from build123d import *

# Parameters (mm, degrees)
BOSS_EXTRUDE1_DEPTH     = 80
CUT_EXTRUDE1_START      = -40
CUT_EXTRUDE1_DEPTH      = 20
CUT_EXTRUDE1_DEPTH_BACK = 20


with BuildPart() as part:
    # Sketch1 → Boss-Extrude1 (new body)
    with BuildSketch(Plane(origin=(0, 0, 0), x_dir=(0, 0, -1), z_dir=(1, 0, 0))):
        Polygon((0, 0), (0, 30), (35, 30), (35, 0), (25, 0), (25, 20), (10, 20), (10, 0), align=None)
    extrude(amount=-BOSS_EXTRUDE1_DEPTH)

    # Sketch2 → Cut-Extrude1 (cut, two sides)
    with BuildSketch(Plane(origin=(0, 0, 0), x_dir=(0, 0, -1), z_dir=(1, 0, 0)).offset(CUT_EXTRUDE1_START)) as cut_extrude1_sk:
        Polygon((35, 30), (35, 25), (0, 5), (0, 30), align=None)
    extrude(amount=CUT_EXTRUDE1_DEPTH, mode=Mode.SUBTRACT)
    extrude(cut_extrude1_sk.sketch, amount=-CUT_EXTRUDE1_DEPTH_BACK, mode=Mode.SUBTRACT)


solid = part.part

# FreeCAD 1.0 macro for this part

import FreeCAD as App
import Part
import Sketcher

V = App.Vector

doc = App.newDocument("Part")
body = doc.addObject("PartDesign::Body", "Body")

# Sketch on YZ plane
sketch1 = body.newObject("Sketcher::SketchObject", "Sketch")
sketch1.AttachmentSupport = (doc.getObject("YZ_Plane"), [""])
sketch1.MapMode = "FlatFace"
sketch1.addGeometry([
    Part.LineSegment(V(30, 0, 0), V(0, 0, 0)),  # 0
    Part.LineSegment(V(0, 0, 0), V(0, -10, 0)),  # 1
    Part.LineSegment(V(0, -10, 0), V(20, -10, 0)),  # 2
    Part.LineSegment(V(20, -10, 0), V(20, -25, 0)),  # 3
    Part.LineSegment(V(20, -25, 0), V(0, -25, 0)),  # 4
    Part.LineSegment(V(0, -25, 0), V(0, -35, 0)),  # 5
    Part.LineSegment(V(0, -35, 0), V(30, -35, 0)),  # 6
    Part.LineSegment(V(30, -35, 0), V(30, 0, 0)),  # 7
], False)
sketch1.addConstraint([
    Sketcher.Constraint("Coincident", 0, 2, 1, 1),
    Sketcher.Constraint("Coincident", 1, 2, 2, 1),
    Sketcher.Constraint("Coincident", 2, 2, 3, 1),
    Sketcher.Constraint("Coincident", 3, 2, 4, 1),
    Sketcher.Constraint("Coincident", 4, 2, 5, 1),
    Sketcher.Constraint("Coincident", 5, 2, 6, 1),
    Sketcher.Constraint("Coincident", 6, 2, 7, 1),
    Sketcher.Constraint("Coincident", 7, 2, 0, 1),
    Sketcher.Constraint("Horizontal", 0),
    Sketcher.Constraint("Vertical", 1),
    Sketcher.Constraint("Horizontal", 2),
    Sketcher.Constraint("Vertical", 3),
    Sketcher.Constraint("Horizontal", 4),
    Sketcher.Constraint("Vertical", 5),
    Sketcher.Constraint("Horizontal", 6),
    Sketcher.Constraint("Vertical", 7),
    Sketcher.Constraint("Coincident", 0, 2, -1, 1),
    Sketcher.Constraint("PointOnObject", 4, 2, -2),
    Sketcher.Constraint("Equal", 1, 5),
    Sketcher.Constraint("DistanceX", 0, 2, 0, 1, 30.0),
    Sketcher.Constraint("DistanceX", 2, 1, 2, 2, 20.0),
    Sketcher.Constraint("DistanceY", 1, 2, 1, 1, 10.0),
    Sketcher.Constraint("DistanceY", 3, 2, 3, 1, 15.0),
])
pad1 = body.newObject("PartDesign::Pad", "Pad")
pad1.Profile = sketch1
pad1.Length = 80
pad1.Reversed = True

# Sketch on YZ plane
sketch2 = body.newObject("Sketcher::SketchObject", "Sketch001")
sketch2.AttachmentSupport = (doc.getObject("YZ_Plane"), [""])
sketch2.MapMode = "FlatFace"
sketch2.AttachmentOffset = App.Placement(V(0, 0, -40), App.Rotation())
sketch2.addGeometry([
    Part.LineSegment(V(25, -35, 0), V(30, -35, 0)),
    Part.LineSegment(V(30, -35, 0), V(30, 0, 0)),
    Part.LineSegment(V(30, 0, 0), V(5, 0, 0)),
    Part.LineSegment(V(5, 0, 0), V(25, -35, 0)),
], False)
sketch2.addConstraint([
    Sketcher.Constraint("Coincident", 0, 2, 1, 1),
    Sketcher.Constraint("Coincident", 1, 2, 2, 1),
    Sketcher.Constraint("Coincident", 2, 2, 3, 1),
    Sketcher.Constraint("Coincident", 3, 2, 0, 1),
    Sketcher.Constraint("Horizontal", 0),
    Sketcher.Constraint("Vertical", 1),
    Sketcher.Constraint("Horizontal", 2),
    Sketcher.Constraint("PointOnObject", 1, 2, -1),
    Sketcher.Constraint("DistanceX", 0, 1, 0, 2, 5.0),
    Sketcher.Constraint("DistanceX", 2, 2, 2, 1, 25.0),
    Sketcher.Constraint("DistanceY", 1, 1, 1, 2, 35.0),
    Sketcher.Constraint("DistanceX", -1, 1, 0, 2, 30.0),
])
pocket1 = body.newObject("PartDesign::Pocket", "Pocket")
pocket1.Profile = sketch2
pocket1.Type = "TwoLengths"
pocket1.Length = 20
pocket1.Length2 = 20
pocket1.Reversed = True

doc.recompute()
